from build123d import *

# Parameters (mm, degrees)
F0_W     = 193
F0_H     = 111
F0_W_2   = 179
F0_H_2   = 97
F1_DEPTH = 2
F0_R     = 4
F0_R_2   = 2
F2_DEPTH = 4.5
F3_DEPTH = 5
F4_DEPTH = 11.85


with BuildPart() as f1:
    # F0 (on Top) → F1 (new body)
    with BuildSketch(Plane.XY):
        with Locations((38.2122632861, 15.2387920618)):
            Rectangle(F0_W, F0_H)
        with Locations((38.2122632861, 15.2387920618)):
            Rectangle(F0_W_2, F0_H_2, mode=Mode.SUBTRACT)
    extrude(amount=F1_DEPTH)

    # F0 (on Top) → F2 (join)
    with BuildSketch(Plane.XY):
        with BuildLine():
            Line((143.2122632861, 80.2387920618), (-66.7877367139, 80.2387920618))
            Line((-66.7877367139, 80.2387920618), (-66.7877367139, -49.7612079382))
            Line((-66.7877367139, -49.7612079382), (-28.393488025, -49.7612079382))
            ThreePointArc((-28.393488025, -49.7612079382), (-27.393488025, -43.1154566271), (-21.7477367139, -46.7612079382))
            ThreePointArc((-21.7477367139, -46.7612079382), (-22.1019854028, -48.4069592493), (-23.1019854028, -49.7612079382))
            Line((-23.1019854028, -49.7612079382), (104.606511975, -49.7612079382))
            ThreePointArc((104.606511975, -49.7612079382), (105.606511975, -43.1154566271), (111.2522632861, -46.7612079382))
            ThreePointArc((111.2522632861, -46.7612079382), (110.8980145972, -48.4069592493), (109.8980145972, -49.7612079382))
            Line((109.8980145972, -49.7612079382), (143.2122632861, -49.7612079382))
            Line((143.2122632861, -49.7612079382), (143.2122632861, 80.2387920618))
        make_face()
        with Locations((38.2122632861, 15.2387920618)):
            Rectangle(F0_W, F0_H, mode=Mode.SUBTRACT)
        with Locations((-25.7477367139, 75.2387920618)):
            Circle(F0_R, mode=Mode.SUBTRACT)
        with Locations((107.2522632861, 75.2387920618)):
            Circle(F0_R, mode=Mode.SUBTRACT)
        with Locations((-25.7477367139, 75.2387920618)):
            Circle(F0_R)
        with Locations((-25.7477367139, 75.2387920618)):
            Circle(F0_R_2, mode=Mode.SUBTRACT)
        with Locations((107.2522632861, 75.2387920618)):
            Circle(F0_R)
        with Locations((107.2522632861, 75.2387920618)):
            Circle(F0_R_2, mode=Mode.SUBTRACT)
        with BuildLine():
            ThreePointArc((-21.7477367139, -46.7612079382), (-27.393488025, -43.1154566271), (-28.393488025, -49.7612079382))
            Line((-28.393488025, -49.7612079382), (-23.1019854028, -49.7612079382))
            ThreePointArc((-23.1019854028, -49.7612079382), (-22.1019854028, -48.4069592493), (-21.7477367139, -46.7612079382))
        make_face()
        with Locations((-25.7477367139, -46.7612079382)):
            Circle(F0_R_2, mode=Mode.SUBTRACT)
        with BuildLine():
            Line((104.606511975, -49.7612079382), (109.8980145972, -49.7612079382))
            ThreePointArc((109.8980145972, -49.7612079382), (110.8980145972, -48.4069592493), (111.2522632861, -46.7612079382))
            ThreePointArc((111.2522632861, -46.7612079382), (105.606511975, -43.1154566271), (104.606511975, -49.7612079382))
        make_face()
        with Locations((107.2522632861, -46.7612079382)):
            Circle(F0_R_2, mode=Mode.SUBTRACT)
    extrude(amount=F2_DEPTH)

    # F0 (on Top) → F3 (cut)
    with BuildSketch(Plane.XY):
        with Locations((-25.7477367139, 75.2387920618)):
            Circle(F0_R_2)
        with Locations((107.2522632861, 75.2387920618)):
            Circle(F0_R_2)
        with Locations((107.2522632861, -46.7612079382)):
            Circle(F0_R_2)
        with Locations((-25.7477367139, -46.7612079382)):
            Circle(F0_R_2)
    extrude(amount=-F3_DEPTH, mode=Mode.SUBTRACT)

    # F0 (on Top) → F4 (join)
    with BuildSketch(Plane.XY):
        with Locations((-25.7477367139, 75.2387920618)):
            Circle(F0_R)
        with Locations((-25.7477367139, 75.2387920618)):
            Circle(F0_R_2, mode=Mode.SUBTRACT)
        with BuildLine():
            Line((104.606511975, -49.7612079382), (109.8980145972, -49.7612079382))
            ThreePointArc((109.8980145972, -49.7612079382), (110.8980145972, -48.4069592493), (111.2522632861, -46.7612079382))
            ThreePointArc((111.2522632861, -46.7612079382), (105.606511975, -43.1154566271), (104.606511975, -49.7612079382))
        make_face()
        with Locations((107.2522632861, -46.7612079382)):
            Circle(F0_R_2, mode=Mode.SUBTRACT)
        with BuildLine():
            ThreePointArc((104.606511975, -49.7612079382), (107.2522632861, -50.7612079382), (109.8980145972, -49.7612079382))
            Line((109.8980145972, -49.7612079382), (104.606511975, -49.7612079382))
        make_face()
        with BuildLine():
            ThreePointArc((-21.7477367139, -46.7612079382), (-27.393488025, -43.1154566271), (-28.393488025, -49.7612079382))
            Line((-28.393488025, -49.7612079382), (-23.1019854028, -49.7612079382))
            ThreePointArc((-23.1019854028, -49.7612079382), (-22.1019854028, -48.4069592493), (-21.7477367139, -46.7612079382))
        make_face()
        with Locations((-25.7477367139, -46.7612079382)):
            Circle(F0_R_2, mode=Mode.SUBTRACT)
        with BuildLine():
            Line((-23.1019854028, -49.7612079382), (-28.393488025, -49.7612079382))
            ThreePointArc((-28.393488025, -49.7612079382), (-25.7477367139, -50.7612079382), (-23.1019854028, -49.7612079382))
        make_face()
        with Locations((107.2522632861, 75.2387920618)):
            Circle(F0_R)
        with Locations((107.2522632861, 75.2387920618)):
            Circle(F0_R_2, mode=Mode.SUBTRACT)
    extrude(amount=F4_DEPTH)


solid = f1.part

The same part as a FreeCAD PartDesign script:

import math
import FreeCAD as App
import Part
import Sketcher
from FreeCAD import Vector
Q = App.Units.Quantity

doc = App.newDocument("Part")
params = doc.addObject("Spreadsheet::Sheet", "Params")
for row, (alias, value) in enumerate([
    ("sketch1_width", "193 mm"),
    ("sketch1_width2", "179 mm"),
    ("sketch1_height", "111 mm"),
    ("sketch1_height2", "97 mm"),
    ("pad1_length", "2 mm"),
    ("sketch2_diameter", "4 mm"),
    ("sketch2_width", "210 mm"),
    ("sketch2_width2", "193 mm"),
    ("sketch2_height", "130 mm"),
    ("sketch2_height2", "111 mm"),
    ("pad2_length", "4.5 mm"),
    ("sketch3_diameter", "4 mm"),
    ("pocket1_length", "5 mm"),
    ("sketch4_diameter", "8 mm"),
    ("sketch4_diameter2", "4 mm"),
    ("sketch4_height", "3 mm"),
    ("pad3_length", "11.85 mm"),
], start=1):
    params.set(f"A{row}", alias)
    params.set(f"B{row}", "=" + value)
    params.setAlias(f"B{row}", alias)

body = doc.addObject("PartDesign::Body", "Body")

# Sketch on XY plane
sketch1 = doc.addObject("Sketcher::SketchObject", "Sketch")
body.addObject(sketch1)
sketch1.AttachmentSupport = (doc.XY_Plane, [""])
sketch1.MapMode = "FlatFace"
sketch1.addGeometry([
    Part.LineSegment(Vector(-58, 71, 0), Vector(-58, -40, 0)),  # 0
    Part.LineSegment(Vector(-58, -40, 0), Vector(135, -40, 0)),  # 1
    Part.LineSegment(Vector(135, -40, 0), Vector(135, 71, 0)),  # 2
    Part.LineSegment(Vector(135, 71, 0), Vector(-58, 71, 0)),  # 3
    Part.LineSegment(Vector(128, -33, 0), Vector(-51, -33, 0)),  # 4
    Part.LineSegment(Vector(-51, -33, 0), Vector(-51, 64, 0)),  # 5
    Part.LineSegment(Vector(-51, 64, 0), Vector(128, 64, 0)),  # 6
    Part.LineSegment(Vector(128, 64, 0), Vector(128, -33, 0)),  # 7
], False)
sketch1.addConstraint([
    Sketcher.Constraint("Coincident", 0, 2, 1, 1),
    Sketcher.Constraint("Coincident", 1, 2, 2, 1),
    Sketcher.Constraint("Coincident", 2, 2, 3, 1),
    Sketcher.Constraint("Coincident", 3, 2, 0, 1),
    Sketcher.Constraint("Coincident", 4, 2, 5, 1),
    Sketcher.Constraint("Coincident", 5, 2, 6, 1),
    Sketcher.Constraint("Coincident", 6, 2, 7, 1),
    Sketcher.Constraint("Coincident", 7, 2, 4, 1),
    Sketcher.Constraint("Vertical", 0),
    Sketcher.Constraint("Horizontal", 1),
    Sketcher.Constraint("Vertical", 2),
    Sketcher.Constraint("Horizontal", 3),
    Sketcher.Constraint("Horizontal", 4),
    Sketcher.Constraint("Vertical", 5),
    Sketcher.Constraint("Horizontal", 6),
    Sketcher.Constraint("Vertical", 7),
    Sketcher.Constraint("DistanceX", 1, 1, 1, 2, Q("193 mm")),
    Sketcher.Constraint("DistanceX", 4, 2, 4, 1, Q("179 mm")),
    Sketcher.Constraint("DistanceY", 0, 2, 0, 1, Q("111 mm")),
    Sketcher.Constraint("DistanceY", 5, 1, 5, 2, Q("97 mm")),
    Sketcher.Constraint("DistanceX", 0, 2, 4, 2, Q("7 mm")),
    Sketcher.Constraint("DistanceY", 0, 2, 4, 2, Q("7 mm")),
    Sketcher.Constraint("DistanceX", 0, 2, -1, 1, Q("58.287737 mm")),
    Sketcher.Constraint("DistanceY", 0, 2, -1, 1, Q("40.261208 mm")),
])
sketch1.setExpression("Constraints[16]", "Params.sketch1_width")
sketch1.setExpression("Constraints[17]", "Params.sketch1_width2")
sketch1.setExpression("Constraints[18]", "Params.sketch1_height")
sketch1.setExpression("Constraints[19]", "Params.sketch1_height2")
pad1 = doc.addObject("PartDesign::Pad", "Pad")
body.addObject(pad1)
pad1.Profile = sketch1
pad1.setExpression("Length", "Params.pad1_length")

# Sketch on XY plane
sketch2 = doc.addObject("Sketcher::SketchObject", "Sketch001")
body.addObject(sketch2)
sketch2.AttachmentSupport = (doc.XY_Plane, [""])
sketch2.MapMode = "FlatFace"
sketch2.addGeometry([
    Part.LineSegment(Vector(143.2, 80.2, 0), Vector(-66.8, 80.2, 0)),  # 0
    Part.LineSegment(Vector(-66.8, 80.2, 0), Vector(-66.8, -49.8, 0)),  # 1
    Part.LineSegment(Vector(-66.8, -49.8, 0), Vector(143.2, -49.8, 0)),  # 2
    Part.LineSegment(Vector(143.2, -49.8, 0), Vector(143.2, 80.2, 0)),  # 3
    Part.Circle(Vector(-25.7, -46.8, 0), Vector(0, 0, 1), 2),  # 4
    Part.Circle(Vector(107.3, -46.8, 0), Vector(0, 0, 1), 2),  # 5
    Part.Circle(Vector(-25.7, 75.2, 0), Vector(0, 0, 1), 2),  # 6
    Part.LineSegment(Vector(134.7, -40.3, 0), Vector(-58.3, -40.3, 0)),  # 7
    Part.LineSegment(Vector(-58.3, -40.3, 0), Vector(-58.3, 70.7, 0)),  # 8
    Part.LineSegment(Vector(-58.3, 70.7, 0), Vector(134.7, 70.7, 0)),  # 9
    Part.LineSegment(Vector(134.7, 70.7, 0), Vector(134.7, -40.3, 0)),  # 10
    Part.Circle(Vector(107.3, 75.2, 0), Vector(0, 0, 1), 2),  # 11
], False)
sketch2.addConstraint([
    Sketcher.Constraint("Coincident", 0, 2, 1, 1),
    Sketcher.Constraint("Coincident", 1, 2, 2, 1),
    Sketcher.Constraint("Coincident", 2, 2, 3, 1),
    Sketcher.Constraint("Coincident", 3, 2, 0, 1),
    Sketcher.Constraint("Coincident", 7, 2, 8, 1),
    Sketcher.Constraint("Coincident", 8, 2, 9, 1),
    Sketcher.Constraint("Coincident", 9, 2, 10, 1),
    Sketcher.Constraint("Coincident", 10, 2, 7, 1),
    Sketcher.Constraint("Horizontal", 0),
    Sketcher.Constraint("Vertical", 1),
    Sketcher.Constraint("Horizontal", 2),
    Sketcher.Constraint("Vertical", 3),
    Sketcher.Constraint("Horizontal", 7),
    Sketcher.Constraint("Vertical", 8),
    Sketcher.Constraint("Horizontal", 9),
    Sketcher.Constraint("Vertical", 10),
    Sketcher.Constraint("Equal", 4, 5),
    Sketcher.Constraint("Equal", 5, 6),
    Sketcher.Constraint("Equal", 6, 11),
    Sketcher.Constraint("Horizontal", 4, 3, 5, 3),
    Sketcher.Constraint("Horizontal", 6, 3, 11, 3),
    Sketcher.Constraint("Vertical", 4, 3, 6, 3),
    Sketcher.Constraint("Vertical", 5, 3, 11, 3),
    Sketcher.Constraint("Diameter", 4, Q("4 mm")),
    Sketcher.Constraint("DistanceX", 0, 2, 0, 1, Q("210 mm")),
    Sketcher.Constraint("DistanceX", 7, 2, 7, 1, Q("193 mm")),
    Sketcher.Constraint("DistanceY", 1, 2, 1, 1, Q("130 mm")),
    Sketcher.Constraint("DistanceY", 8, 1, 8, 2, Q("111 mm")),
    Sketcher.Constraint("DistanceX", 4, 3, 5, 3, Q("133 mm")),
    Sketcher.Constraint("DistanceY", 4, 3, 6, 3, Q("122 mm")),
    Sketcher.Constraint("DistanceY", 6, 3, 0, 2, Q("5 mm")),
    Sketcher.Constraint("DistanceX", 1, 2, 7, 2, Q("8.5 mm")),
    Sketcher.Constraint("DistanceY", 1, 2, 7, 2, Q("9.5 mm")),
    Sketcher.Constraint("DistanceX", 0, 2, 6, 3, Q("41.04 mm")),
    Sketcher.Constraint("DistanceX", 4, 3, -1, 1, Q("25.747737 mm")),
    Sketcher.Constraint("DistanceY", 4, 3, -1, 1, Q("46.761208 mm")),
])
sketch2.setExpression("Constraints[23]", "Params.sketch2_diameter")
sketch2.setExpression("Constraints[24]", "Params.sketch2_width")
sketch2.setExpression("Constraints[25]", "Params.sketch2_width2")
sketch2.setExpression("Constraints[26]", "Params.sketch2_height")
sketch2.setExpression("Constraints[27]", "Params.sketch2_height2")
pad2 = doc.addObject("PartDesign::Pad", "Pad001")
body.addObject(pad2)
pad2.Profile = sketch2
pad2.setExpression("Length", "Params.pad2_length")

# Sketch on XY plane
sketch3 = doc.addObject("Sketcher::SketchObject", "Sketch002")
body.addObject(sketch3)
sketch3.AttachmentSupport = (doc.XY_Plane, [""])
sketch3.MapMode = "FlatFace"
sketch3.addGeometry([
    Part.Circle(Vector(-25.7, 75.2, 0), Vector(0, 0, 1), 2),
    Part.Circle(Vector(107.3, 75.2, 0), Vector(0, 0, 1), 2),
    Part.Circle(Vector(107.3, -46.8, 0), Vector(0, 0, 1), 2),
    Part.Circle(Vector(-25.7, -46.8, 0), Vector(0, 0, 1), 2),
], False)
sketch3.addConstraint([
    Sketcher.Constraint("Equal", 0, 1),
    Sketcher.Constraint("Equal", 1, 2),
    Sketcher.Constraint("Equal", 2, 3),
    Sketcher.Constraint("Horizontal", 0, 3, 1, 3),
    Sketcher.Constraint("Horizontal", 2, 3, 3, 3),
    Sketcher.Constraint("Vertical", 1, 3, 2, 3),
    Sketcher.Constraint("Vertical", 0, 3, 3, 3),
    Sketcher.Constraint("Diameter", 0, Q("4 mm")),
    Sketcher.Constraint("DistanceX", 0, 3, 1, 3, Q("133 mm")),
    Sketcher.Constraint("DistanceY", 2, 3, 1, 3, Q("122 mm")),
    Sketcher.Constraint("DistanceX", 0, 3, -1, 1, Q("25.747737 mm")),
    Sketcher.Constraint("DistanceY", -1, 1, 0, 3, Q("75.238792 mm")),
])
sketch3.setExpression("Constraints[7]", "Params.sketch3_diameter")
pocket1 = doc.addObject("PartDesign::Pocket", "Pocket")
body.addObject(pocket1)
pocket1.Profile = sketch3
pocket1.setExpression("Length", "Params.pocket1_length")

# Sketch on XY plane
sketch4 = doc.addObject("Sketcher::SketchObject", "Sketch003")
body.addObject(sketch4)
sketch4.AttachmentSupport = (doc.XY_Plane, [""])
sketch4.MapMode = "FlatFace"
sketch4.addGeometry([
    Part.Circle(Vector(-25.7, 75.2, 0), Vector(0, 0, 1), 4),  # 0
    Part.Circle(Vector(-25.7, 75.2, 0), Vector(0, 0, 1), 2),  # 1
    Part.ArcOfCircle(Part.Circle(Vector(107.3, -46.8, 0), Vector(0, 0, 1), 4), math.radians(0), math.radians(229)),  # 2
    Part.ArcOfCircle(Part.Circle(Vector(107.3, -46.8, 0), Vector(0, 0, 1), 4), math.radians(-131), math.radians(-49)),  # 3
    Part.ArcOfCircle(Part.Circle(Vector(107.3, -46.8, 0), Vector(0, 0, 1), 4), math.radians(-49), math.radians(0)),  # 4
    Part.Circle(Vector(107.3, -46.8, 0), Vector(0, 0, 1), 2),  # 5
    Part.ArcOfCircle(Part.Circle(Vector(-25.7, -46.8, 0), Vector(0, 0, 1), 4), math.radians(0), math.radians(229)),  # 6
    Part.ArcOfCircle(Part.Circle(Vector(-25.7, -46.8, 0), Vector(0, 0, 1), 4), math.radians(-131), math.radians(-49)),  # 7
    Part.ArcOfCircle(Part.Circle(Vector(-25.7, -46.8, 0), Vector(0, 0, 1), 4), math.radians(-49), math.radians(0)),  # 8
    Part.Circle(Vector(-25.7, -46.8, 0), Vector(0, 0, 1), 2),  # 9
    Part.Circle(Vector(107.3, 75.2, 0), Vector(0, 0, 1), 4),  # 10
    Part.Circle(Vector(107.3, 75.2, 0), Vector(0, 0, 1), 2),  # 11
], False)
sketch4.addConstraint([
    Sketcher.Constraint("Tangent", 2, 2, 3, 1),
    Sketcher.Constraint("Tangent", 3, 2, 4, 1),
    Sketcher.Constraint("Tangent", 4, 2, 2, 1),
    Sketcher.Constraint("Tangent", 6, 2, 7, 1),
    Sketcher.Constraint("Tangent", 7, 2, 8, 1),
    Sketcher.Constraint("Tangent", 8, 2, 6, 1),
    Sketcher.Constraint("Coincident", 1, 3, 0, 3),
    Sketcher.Constraint("Coincident", 5, 3, 2, 3),
    Sketcher.Constraint("Coincident", 9, 3, 6, 3),
    Sketcher.Constraint("Coincident", 11, 3, 10, 3),
    Sketcher.Constraint("Equal", 0, 2),
    Sketcher.Constraint("Equal", 1, 5),
    Sketcher.Constraint("Equal", 4, 6),
    Sketcher.Constraint("Equal", 5, 9),
    Sketcher.Constraint("Equal", 8, 10),
    Sketcher.Constraint("Equal", 9, 11),
    Sketcher.Constraint("Horizontal", 5, 3, 6, 3),
    Sketcher.Constraint("Horizontal", 1, 3, 10, 3),
    Sketcher.Constraint("Horizontal", 2, 2, 3, 2),
    Sketcher.Constraint("Horizontal", 9, 3, 4, 2),
    Sketcher.Constraint("Horizontal", 3, 2, 6, 2),
    Sketcher.Constraint("Horizontal", 6, 2, 7, 2),
    Sketcher.Constraint("Horizontal", 4, 2, 8, 2),
    Sketcher.Constraint("Vertical", 1, 3, 6, 3),
    Sketcher.Constraint("Vertical", 5, 3, 10, 3),
    Sketcher.Constraint("Diameter", 0, Q("8 mm")),
    Sketcher.Constraint("Diameter", 1, Q("4 mm")),
    Sketcher.Constraint("DistanceX", 0, 3, 2, 3, Q("133 mm")),
    Sketcher.Constraint("DistanceY", 2, 3, 0, 3, Q("122 mm")),
    Sketcher.Constraint("DistanceY", 2, 2, 2, 3, Q("3 mm")),
    Sketcher.Constraint("DistanceX", -1, 1, 2, 2, Q("104.606512 mm")),
    Sketcher.Constraint("DistanceY", -1, 1, 0, 3, Q("75.238792 mm")),
])
sketch4.setExpression("Constraints[25]", "Params.sketch4_diameter")
sketch4.setExpression("Constraints[26]", "Params.sketch4_diameter2")
sketch4.setExpression("Constraints[29]", "Params.sketch4_height")
pad3 = doc.addObject("PartDesign::Pad", "Pad002")
body.addObject(pad3)
pad3.Profile = sketch4
pad3.setExpression("Length", "Params.pad3_length")

doc.recompute()
